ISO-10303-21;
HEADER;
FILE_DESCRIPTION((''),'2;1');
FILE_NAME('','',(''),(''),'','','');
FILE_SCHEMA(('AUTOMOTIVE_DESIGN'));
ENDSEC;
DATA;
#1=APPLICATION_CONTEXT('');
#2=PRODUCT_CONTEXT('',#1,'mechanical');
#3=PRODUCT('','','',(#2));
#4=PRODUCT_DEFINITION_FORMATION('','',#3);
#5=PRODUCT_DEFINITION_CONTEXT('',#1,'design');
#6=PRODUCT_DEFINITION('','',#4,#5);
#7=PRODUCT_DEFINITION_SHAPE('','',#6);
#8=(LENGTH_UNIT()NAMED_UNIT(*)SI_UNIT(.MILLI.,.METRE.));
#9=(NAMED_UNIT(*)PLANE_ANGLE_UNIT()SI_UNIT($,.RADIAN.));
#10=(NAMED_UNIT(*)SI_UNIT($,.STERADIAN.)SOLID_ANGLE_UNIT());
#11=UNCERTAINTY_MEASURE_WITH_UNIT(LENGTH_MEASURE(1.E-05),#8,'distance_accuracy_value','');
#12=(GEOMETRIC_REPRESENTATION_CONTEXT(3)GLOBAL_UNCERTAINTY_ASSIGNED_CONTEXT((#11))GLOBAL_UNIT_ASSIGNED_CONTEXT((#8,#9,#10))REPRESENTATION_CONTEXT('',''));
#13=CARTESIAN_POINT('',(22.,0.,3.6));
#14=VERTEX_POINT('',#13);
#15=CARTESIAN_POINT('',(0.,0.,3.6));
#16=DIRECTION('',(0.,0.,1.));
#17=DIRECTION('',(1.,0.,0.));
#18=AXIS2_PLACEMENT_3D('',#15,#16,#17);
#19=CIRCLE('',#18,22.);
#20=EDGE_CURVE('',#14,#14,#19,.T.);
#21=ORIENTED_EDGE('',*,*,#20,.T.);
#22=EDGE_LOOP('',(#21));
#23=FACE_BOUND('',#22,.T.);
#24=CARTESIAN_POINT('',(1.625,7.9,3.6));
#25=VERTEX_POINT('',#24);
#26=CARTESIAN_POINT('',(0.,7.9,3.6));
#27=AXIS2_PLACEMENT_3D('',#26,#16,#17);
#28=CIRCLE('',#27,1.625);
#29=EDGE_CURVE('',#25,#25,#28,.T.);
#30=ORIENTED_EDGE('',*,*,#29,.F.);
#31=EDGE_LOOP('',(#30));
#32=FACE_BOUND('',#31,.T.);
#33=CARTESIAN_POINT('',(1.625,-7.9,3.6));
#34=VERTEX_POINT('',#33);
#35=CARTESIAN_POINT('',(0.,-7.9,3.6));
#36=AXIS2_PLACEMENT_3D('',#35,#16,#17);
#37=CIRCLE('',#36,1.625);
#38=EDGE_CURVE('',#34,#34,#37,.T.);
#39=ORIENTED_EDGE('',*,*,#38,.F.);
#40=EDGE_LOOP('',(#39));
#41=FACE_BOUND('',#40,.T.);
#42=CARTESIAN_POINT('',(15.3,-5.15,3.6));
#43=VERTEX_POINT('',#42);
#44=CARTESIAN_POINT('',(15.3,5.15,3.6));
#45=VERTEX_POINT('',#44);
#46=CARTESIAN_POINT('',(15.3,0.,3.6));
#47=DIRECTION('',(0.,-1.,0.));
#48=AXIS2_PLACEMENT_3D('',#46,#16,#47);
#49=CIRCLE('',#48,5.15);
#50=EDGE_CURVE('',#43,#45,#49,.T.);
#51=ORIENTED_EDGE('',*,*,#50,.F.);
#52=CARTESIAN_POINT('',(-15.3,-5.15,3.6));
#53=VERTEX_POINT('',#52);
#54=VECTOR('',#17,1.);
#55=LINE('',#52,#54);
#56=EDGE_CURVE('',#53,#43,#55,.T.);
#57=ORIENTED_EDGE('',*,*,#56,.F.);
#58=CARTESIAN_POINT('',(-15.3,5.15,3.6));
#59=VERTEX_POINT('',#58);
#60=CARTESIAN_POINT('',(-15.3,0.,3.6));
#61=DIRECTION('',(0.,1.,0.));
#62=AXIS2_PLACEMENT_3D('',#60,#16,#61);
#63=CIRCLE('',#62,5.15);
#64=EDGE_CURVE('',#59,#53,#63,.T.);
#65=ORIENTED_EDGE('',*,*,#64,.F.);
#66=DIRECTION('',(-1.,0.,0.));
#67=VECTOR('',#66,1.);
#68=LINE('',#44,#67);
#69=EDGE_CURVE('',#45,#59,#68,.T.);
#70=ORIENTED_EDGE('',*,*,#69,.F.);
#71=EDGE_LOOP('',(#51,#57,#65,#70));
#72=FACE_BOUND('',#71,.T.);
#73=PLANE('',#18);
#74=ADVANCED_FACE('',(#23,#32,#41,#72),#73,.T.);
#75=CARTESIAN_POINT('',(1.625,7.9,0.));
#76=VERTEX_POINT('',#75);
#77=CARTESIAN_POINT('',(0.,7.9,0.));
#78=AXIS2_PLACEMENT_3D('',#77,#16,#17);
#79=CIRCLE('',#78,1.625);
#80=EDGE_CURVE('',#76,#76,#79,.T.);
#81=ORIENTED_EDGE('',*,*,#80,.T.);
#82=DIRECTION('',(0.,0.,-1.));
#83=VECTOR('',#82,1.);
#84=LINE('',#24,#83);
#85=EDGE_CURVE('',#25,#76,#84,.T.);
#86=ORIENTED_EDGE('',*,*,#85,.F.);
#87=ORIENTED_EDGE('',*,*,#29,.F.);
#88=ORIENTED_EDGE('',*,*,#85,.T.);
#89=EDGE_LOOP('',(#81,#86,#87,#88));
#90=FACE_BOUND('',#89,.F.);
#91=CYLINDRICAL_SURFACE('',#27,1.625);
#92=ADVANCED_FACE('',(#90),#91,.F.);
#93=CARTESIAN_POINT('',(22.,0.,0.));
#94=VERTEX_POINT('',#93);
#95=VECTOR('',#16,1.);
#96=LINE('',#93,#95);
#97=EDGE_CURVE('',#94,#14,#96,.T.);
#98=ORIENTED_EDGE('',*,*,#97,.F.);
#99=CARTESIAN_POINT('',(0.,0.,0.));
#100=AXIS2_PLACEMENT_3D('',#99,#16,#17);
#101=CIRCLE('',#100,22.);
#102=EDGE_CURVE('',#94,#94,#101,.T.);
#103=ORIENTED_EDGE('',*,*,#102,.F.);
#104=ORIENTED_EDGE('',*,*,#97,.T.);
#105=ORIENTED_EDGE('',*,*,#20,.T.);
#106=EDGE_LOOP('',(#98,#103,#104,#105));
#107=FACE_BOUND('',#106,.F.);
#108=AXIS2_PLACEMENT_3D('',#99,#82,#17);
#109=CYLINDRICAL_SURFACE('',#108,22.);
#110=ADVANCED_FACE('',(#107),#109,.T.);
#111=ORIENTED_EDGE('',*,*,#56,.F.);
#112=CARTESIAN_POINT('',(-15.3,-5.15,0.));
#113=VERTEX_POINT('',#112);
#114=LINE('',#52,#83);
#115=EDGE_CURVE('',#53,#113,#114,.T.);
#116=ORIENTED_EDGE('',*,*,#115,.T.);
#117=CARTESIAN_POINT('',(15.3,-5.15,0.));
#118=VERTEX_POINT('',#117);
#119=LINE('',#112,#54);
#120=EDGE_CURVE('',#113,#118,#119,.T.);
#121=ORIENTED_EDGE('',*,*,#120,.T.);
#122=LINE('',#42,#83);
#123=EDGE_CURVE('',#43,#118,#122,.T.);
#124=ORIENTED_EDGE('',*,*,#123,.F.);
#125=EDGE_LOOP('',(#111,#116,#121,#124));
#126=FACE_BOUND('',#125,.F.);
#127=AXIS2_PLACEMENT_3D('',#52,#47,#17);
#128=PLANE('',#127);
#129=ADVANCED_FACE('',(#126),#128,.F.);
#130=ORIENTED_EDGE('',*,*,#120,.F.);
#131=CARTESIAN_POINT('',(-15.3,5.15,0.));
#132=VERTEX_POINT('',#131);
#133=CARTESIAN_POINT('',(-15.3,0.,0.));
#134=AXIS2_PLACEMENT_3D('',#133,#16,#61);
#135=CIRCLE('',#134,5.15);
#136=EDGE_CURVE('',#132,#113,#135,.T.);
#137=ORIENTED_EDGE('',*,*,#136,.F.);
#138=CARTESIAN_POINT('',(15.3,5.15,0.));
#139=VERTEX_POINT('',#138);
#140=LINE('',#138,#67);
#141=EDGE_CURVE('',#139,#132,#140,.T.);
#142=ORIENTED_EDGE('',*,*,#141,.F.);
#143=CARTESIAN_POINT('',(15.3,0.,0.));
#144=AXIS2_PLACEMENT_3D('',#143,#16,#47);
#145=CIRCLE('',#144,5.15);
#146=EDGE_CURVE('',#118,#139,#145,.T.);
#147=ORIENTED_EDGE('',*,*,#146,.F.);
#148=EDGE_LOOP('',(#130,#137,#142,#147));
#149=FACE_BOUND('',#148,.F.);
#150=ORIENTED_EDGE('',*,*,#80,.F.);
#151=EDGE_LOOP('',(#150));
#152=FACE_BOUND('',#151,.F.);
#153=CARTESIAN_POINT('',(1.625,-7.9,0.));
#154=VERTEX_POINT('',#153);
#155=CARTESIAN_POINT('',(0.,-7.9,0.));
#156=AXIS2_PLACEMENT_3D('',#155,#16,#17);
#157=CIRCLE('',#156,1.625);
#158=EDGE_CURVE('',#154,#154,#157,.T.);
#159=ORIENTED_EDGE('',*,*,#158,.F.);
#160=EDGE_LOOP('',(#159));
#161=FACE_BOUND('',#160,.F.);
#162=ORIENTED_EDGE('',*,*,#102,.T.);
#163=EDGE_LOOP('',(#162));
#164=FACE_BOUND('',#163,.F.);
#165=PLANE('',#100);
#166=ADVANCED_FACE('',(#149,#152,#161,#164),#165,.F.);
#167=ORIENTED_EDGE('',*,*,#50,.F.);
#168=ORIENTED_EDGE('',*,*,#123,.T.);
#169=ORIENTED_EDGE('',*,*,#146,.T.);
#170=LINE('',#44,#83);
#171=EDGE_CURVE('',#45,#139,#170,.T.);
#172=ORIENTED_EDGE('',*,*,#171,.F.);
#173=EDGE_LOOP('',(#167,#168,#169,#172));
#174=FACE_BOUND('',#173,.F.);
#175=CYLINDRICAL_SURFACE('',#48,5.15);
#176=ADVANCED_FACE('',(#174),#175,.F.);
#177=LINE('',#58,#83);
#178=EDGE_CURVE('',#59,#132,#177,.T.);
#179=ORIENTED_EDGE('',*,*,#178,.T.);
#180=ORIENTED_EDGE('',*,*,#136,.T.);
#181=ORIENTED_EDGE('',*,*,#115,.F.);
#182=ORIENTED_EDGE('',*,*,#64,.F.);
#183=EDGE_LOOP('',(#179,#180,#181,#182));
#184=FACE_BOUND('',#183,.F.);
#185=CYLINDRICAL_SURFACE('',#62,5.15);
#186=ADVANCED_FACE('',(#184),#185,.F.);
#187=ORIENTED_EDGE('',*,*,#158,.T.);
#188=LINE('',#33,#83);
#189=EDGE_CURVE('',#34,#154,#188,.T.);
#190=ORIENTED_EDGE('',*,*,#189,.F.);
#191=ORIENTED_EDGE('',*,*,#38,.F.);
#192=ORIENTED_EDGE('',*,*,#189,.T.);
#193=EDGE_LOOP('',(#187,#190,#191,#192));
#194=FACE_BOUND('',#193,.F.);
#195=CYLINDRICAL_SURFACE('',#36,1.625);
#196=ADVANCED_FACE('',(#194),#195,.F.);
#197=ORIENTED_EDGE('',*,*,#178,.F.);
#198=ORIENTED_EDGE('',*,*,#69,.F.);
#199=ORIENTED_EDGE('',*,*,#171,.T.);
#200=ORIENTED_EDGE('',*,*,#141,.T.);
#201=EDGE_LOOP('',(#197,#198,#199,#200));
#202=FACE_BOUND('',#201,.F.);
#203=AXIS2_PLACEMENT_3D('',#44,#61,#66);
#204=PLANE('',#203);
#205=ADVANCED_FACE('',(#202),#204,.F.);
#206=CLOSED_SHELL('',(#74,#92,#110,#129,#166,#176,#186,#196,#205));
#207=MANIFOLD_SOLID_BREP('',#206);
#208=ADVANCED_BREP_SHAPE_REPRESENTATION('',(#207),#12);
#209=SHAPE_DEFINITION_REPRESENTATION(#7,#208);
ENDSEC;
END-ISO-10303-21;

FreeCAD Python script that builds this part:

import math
import FreeCAD as App
import Part
import Sketcher
from FreeCAD import Vector
Q = App.Units.Quantity

doc = App.newDocument("Part")
body = doc.addObject("PartDesign::Body", "Body")

# Sketch on XY plane
sketch1 = body.newObject("Sketcher::SketchObject", "Sketch")
sketch1.AttachmentSupport = (doc.getObject("XY_Plane"), [""])
sketch1.MapMode = "FlatFace"
sketch1.addGeometry(Part.Circle(Vector(0, 0, 0), Vector(0, 0, 1), 22), False)
sketch1.addConstraint([
    Sketcher.Constraint("Coincident", 0, 3, -1, 1),
    Sketcher.Constraint("Diameter", 0, Q("44 mm")),
])
pad1 = body.newObject("PartDesign::Pad", "Pad")
pad1.Profile = sketch1
pad1.Length = 3.6

# Sketch on XY plane
sketch2 = body.newObject("Sketcher::SketchObject", "Sketch001")
sketch2.AttachmentSupport = (doc.getObject("XY_Plane"), [""])
sketch2.MapMode = "FlatFace"
sketch2.AttachmentOffset = App.Placement(Vector(0, 0, 3.6), App.Rotation())
sketch2.addGeometry([
    Part.ArcOfCircle(Part.Circle(Vector(15, 0, 0), Vector(0, 0, 1), 5), math.radians(-90), math.radians(90)),
    Part.LineSegment(Vector(15, 5, 0), Vector(-15, 5, 0)),
    Part.ArcOfCircle(Part.Circle(Vector(-15, 0, 0), Vector(0, 0, 1), 5), math.radians(90), math.radians(270)),
    Part.LineSegment(Vector(-15, -5, 0), Vector(15, -5, 0)),
], False)
sketch2.addConstraint([
    Sketcher.Constraint("Tangent", 0, 2, 1, 1),
    Sketcher.Constraint("Tangent", 1, 2, 2, 1),
    Sketcher.Constraint("Tangent", 2, 2, 3, 1),
    Sketcher.Constraint("Tangent", 3, 2, 0, 1),
    Sketcher.Constraint("Horizontal", 1),
    Sketcher.Constraint("Horizontal", 3),
    Sketcher.Constraint("Symmetric", 0, 3, 2, 3, -1, 1),
    Sketcher.Constraint("Radius", 0, Q("5.15 mm")),
    Sketcher.Constraint("DistanceX", -1, 1, 0, 3, Q("15.3 mm")),
])
pocket1 = body.newObject("PartDesign::Pocket", "Pocket")
pocket1.Profile = sketch2
pocket1.Length = 3.6

# Sketch on XY plane
sketch3 = body.newObject("Sketcher::SketchObject", "Sketch002")
sketch3.AttachmentSupport = (doc.getObject("XY_Plane"), [""])
sketch3.MapMode = "FlatFace"
sketch3.AttachmentOffset = App.Placement(Vector(0, 0, 3.6), App.Rotation())
sketch3.addGeometry([
    Part.Circle(Vector(0, -7.9, 0), Vector(0, 0, 1), 1.6),
    Part.Circle(Vector(0, 7.9, 0), Vector(0, 0, 1), 1.6),
], False)
sketch3.addConstraint([
    Sketcher.Constraint("Equal", 0, 1),
    Sketcher.Constraint("Symmetric", 0, 3, 1, 3, -1, 1),
    Sketcher.Constraint("PointOnObject", 0, 3, -2),
    Sketcher.Constraint("Diameter", 0, Q("3.25 mm")),
    Sketcher.Constraint("DistanceY", 0, 3, -1, 1, Q("7.9 mm")),
])
pocket2 = body.newObject("PartDesign::Pocket", "Pocket001")
pocket2.Profile = sketch3
pocket2.Length = 10

doc.recompute()
